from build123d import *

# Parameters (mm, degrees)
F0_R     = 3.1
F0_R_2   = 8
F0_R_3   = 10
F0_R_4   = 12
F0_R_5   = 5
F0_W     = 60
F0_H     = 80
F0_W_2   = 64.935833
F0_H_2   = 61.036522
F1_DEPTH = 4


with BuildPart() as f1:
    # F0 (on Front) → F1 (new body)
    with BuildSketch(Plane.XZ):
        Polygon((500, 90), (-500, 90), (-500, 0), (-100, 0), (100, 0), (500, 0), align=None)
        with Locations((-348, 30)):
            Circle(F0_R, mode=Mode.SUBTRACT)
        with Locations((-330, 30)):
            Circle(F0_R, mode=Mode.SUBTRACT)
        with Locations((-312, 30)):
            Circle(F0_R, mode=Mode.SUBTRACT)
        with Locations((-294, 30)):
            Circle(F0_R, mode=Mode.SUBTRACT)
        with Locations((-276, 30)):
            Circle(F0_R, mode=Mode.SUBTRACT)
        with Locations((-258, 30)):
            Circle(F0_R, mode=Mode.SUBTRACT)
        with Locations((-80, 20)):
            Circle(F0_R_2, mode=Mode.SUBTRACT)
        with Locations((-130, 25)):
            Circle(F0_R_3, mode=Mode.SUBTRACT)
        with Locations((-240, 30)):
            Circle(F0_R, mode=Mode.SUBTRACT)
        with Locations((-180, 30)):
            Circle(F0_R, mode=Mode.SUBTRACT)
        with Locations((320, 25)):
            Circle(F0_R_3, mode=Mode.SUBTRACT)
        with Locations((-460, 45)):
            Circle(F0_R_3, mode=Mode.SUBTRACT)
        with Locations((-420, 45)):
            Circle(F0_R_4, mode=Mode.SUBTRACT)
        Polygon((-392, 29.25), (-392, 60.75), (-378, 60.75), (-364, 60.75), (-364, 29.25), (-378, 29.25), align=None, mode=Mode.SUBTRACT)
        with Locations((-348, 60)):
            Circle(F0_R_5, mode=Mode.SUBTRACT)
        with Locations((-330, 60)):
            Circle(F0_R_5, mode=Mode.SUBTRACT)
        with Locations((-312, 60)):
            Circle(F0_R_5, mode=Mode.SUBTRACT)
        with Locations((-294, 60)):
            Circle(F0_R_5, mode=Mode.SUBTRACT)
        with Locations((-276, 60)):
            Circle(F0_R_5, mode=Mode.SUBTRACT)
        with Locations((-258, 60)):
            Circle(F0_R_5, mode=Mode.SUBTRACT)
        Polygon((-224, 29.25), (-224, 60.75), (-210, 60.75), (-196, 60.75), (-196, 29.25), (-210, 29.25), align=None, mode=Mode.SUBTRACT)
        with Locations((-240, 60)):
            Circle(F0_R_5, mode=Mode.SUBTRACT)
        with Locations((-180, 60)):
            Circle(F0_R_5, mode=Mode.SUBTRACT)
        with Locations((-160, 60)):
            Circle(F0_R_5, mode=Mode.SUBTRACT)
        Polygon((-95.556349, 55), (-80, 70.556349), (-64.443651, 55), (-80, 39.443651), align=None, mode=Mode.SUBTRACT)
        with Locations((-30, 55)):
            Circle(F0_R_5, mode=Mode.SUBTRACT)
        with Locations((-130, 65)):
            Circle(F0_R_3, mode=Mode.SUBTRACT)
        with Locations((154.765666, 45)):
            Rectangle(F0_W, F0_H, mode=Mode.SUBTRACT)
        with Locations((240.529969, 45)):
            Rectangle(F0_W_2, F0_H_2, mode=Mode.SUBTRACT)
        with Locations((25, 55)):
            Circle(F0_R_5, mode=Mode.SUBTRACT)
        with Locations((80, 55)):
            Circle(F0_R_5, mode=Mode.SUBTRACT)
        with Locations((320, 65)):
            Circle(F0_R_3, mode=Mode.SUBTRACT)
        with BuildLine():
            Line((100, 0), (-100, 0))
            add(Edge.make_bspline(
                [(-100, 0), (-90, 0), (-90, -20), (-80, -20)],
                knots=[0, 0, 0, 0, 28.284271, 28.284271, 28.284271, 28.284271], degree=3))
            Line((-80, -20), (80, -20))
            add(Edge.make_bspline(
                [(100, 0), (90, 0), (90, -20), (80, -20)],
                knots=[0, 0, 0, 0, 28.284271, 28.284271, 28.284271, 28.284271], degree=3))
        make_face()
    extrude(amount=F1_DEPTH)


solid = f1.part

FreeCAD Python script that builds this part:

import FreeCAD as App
import Part
import Sketcher

V = App.Vector

doc = App.newDocument("Part")
body = doc.addObject("PartDesign::Body", "Body")

sketch1 = body.newObject("Sketcher::SketchObject", "Sketch")
sketch1.AttachmentSupport = (doc.getObject("XZ_Plane"), [""])
sketch1.MapMode = "FlatFace"
sketch1.addGeometry([
    Part.LineSegment(V(500, 90, 0), V(-500, 90, 0)),
    Part.LineSegment(V(-500, 90, 0), V(-500, 0, 0)),
    Part.LineSegment(V(-500, 0, 0), V(-100, 0, 0)),
    Part.BSplineCurve([V(-100, 0, 0), V(-90, 0, 0), V(-90, -20, 0), V(-80, -20, 0)], [4, 4], [0, 28.284271], False, 3, [1, 1, 1, 1], False),
    Part.LineSegment(V(-80, -20, 0), V(80, -20, 0)),
    Part.BSplineCurve([V(100, 0, 0), V(90, 0, 0), V(90, -20, 0), V(80, -20, 0)], [4, 4], [0, 28.284271], False, 3, [1, 1, 1, 1], False),
    Part.LineSegment(V(100, 0, 0), V(500, 0, 0)),
    Part.LineSegment(V(500, 0, 0), V(500, 90, 0)),
    Part.Circle(V(-80, 20, 0), V(0, 0, 1), 8),
    Part.Circle(V(-348, 30, 0), V(0, 0, 1), 3.1),
    Part.Circle(V(-330, 30, 0), V(0, 0, 1), 3.1),
    Part.Circle(V(-312, 30, 0), V(0, 0, 1), 3.1),
    Part.Circle(V(-294, 30, 0), V(0, 0, 1), 3.1),
    Part.Circle(V(-276, 30, 0), V(0, 0, 1), 3.1),
    Part.Circle(V(-258, 30, 0), V(0, 0, 1), 3.1),
    Part.Circle(V(-240, 30, 0), V(0, 0, 1), 3.1),
    Part.Circle(V(-180, 30, 0), V(0, 0, 1), 3.1),
    Part.Circle(V(-130, 25, 0), V(0, 0, 1), 10),
    Part.Circle(V(320, 25, 0), V(0, 0, 1), 10),
    Part.Circle(V(-460, 45, 0), V(0, 0, 1), 10),
    Part.Circle(V(-420, 45, 0), V(0, 0, 1), 12),
    Part.LineSegment(V(-364, 29.25, 0), V(-392, 29.25, 0)),
    Part.LineSegment(V(-392, 29.25, 0), V(-392, 60.75, 0)),
    Part.LineSegment(V(-392, 60.75, 0), V(-364, 60.75, 0)),
    Part.LineSegment(V(-364, 60.75, 0), V(-364, 29.25, 0)),
    Part.Circle(V(-348, 60, 0), V(0, 0, 1), 5),
    Part.Circle(V(-330, 60, 0), V(0, 0, 1), 5),
    Part.Circle(V(-312, 60, 0), V(0, 0, 1), 5),
    Part.Circle(V(-294, 60, 0), V(0, 0, 1), 5),
    Part.Circle(V(-276, 60, 0), V(0, 0, 1), 5),
    Part.LineSegment(V(-196, 29.25, 0), V(-224, 29.25, 0)),
    Part.LineSegment(V(-224, 29.25, 0), V(-224, 60.75, 0)),
    Part.LineSegment(V(-224, 60.75, 0), V(-196, 60.75, 0)),
    Part.LineSegment(V(-196, 60.75, 0), V(-196, 29.25, 0)),
    Part.Circle(V(-258, 60, 0), V(0, 0, 1), 5),
    Part.Circle(V(-240, 60, 0), V(0, 0, 1), 5),
    Part.Circle(V(-180, 60, 0), V(0, 0, 1), 5),
    Part.LineSegment(V(-80, 39.443651, 0), V(-95.556349, 55, 0)),
    Part.LineSegment(V(-95.556349, 55, 0), V(-80, 70.556349, 0)),
    Part.LineSegment(V(-80, 70.556349, 0), V(-64.443651, 55, 0)),
    Part.LineSegment(V(-64.443651, 55, 0), V(-80, 39.443651, 0)),
    Part.Circle(V(-160, 60, 0), V(0, 0, 1), 5),
    Part.Circle(V(-130, 65, 0), V(0, 0, 1), 10),
    Part.Circle(V(-30, 55, 0), V(0, 0, 1), 5),
    Part.Circle(V(25, 55, 0), V(0, 0, 1), 5),
    Part.Circle(V(80, 55, 0), V(0, 0, 1), 5),
    Part.LineSegment(V(184.765666, 5, 0), V(124.765666, 5, 0)),
    Part.LineSegment(V(124.765666, 5, 0), V(124.765666, 85, 0)),
    Part.LineSegment(V(124.765666, 85, 0), V(184.765666, 85, 0)),
    Part.LineSegment(V(184.765666, 85, 0), V(184.765666, 5, 0)),
    Part.LineSegment(V(272.997885, 14.481739, 0), V(208.062052, 14.481739, 0)),
    Part.LineSegment(V(208.062052, 14.481739, 0), V(208.062052, 75.518261, 0)),
    Part.LineSegment(V(208.062052, 75.518261, 0), V(272.997885, 75.518261, 0)),
    Part.LineSegment(V(272.997885, 75.518261, 0), V(272.997885, 14.481739, 0)),
    Part.Circle(V(320, 65, 0), V(0, 0, 1), 10),
], False)
sketch1.addConstraint([
    Sketcher.Constraint("Block", 3),
    Sketcher.Constraint("Block", 5),
    Sketcher.Constraint("Coincident", 0, 2, 1, 1),
    Sketcher.Constraint("Coincident", 1, 2, 2, 1),
    Sketcher.Constraint("Coincident", 2, 2, 3, 1),
    Sketcher.Constraint("Coincident", 3, 2, 4, 1),
    Sketcher.Constraint("Coincident", 4, 2, 5, 2),
    Sketcher.Constraint("Coincident", 5, 1, 6, 1),
    Sketcher.Constraint("Coincident", 6, 2, 7, 1),
    Sketcher.Constraint("Coincident", 7, 2, 0, 1),
    Sketcher.Constraint("Coincident", 21, 2, 22, 1),
    Sketcher.Constraint("Coincident", 22, 2, 23, 1),
    Sketcher.Constraint("Coincident", 23, 2, 24, 1),
    Sketcher.Constraint("Coincident", 24, 2, 21, 1),
    Sketcher.Constraint("Coincident", 30, 2, 31, 1),
    Sketcher.Constraint("Coincident", 31, 2, 32, 1),
    Sketcher.Constraint("Coincident", 32, 2, 33, 1),
    Sketcher.Constraint("Coincident", 33, 2, 30, 1),
    Sketcher.Constraint("Coincident", 37, 2, 38, 1),
    Sketcher.Constraint("Coincident", 38, 2, 39, 1),
    Sketcher.Constraint("Coincident", 39, 2, 40, 1),
    Sketcher.Constraint("Coincident", 40, 2, 37, 1),
    Sketcher.Constraint("Coincident", 46, 2, 47, 1),
    Sketcher.Constraint("Coincident", 47, 2, 48, 1),
    Sketcher.Constraint("Coincident", 48, 2, 49, 1),
    Sketcher.Constraint("Coincident", 49, 2, 46, 1),
    Sketcher.Constraint("Coincident", 50, 2, 51, 1),
    Sketcher.Constraint("Coincident", 51, 2, 52, 1),
    Sketcher.Constraint("Coincident", 52, 2, 53, 1),
    Sketcher.Constraint("Coincident", 53, 2, 50, 1),
    Sketcher.Constraint("Horizontal", 0),
    Sketcher.Constraint("Vertical", 1),
    Sketcher.Constraint("Horizontal", 2),
    Sketcher.Constraint("Horizontal", 6),
    Sketcher.Constraint("Vertical", 7),
    Sketcher.Constraint("Horizontal", 21),
    Sketcher.Constraint("Vertical", 22),
    Sketcher.Constraint("Horizontal", 23),
    Sketcher.Constraint("Vertical", 24),
    Sketcher.Constraint("Horizontal", 30),
    Sketcher.Constraint("Vertical", 31),
    Sketcher.Constraint("Horizontal", 32),
    Sketcher.Constraint("Vertical", 33),
    Sketcher.Constraint("Horizontal", 46),
    Sketcher.Constraint("Vertical", 47),
    Sketcher.Constraint("Horizontal", 48),
    Sketcher.Constraint("Vertical", 49),
    Sketcher.Constraint("Horizontal", 50),
    Sketcher.Constraint("Vertical", 51),
    Sketcher.Constraint("Horizontal", 52),
    Sketcher.Constraint("Vertical", 53),
    Sketcher.Constraint("Equal", 9, 10),
    Sketcher.Constraint("Equal", 10, 11),
    Sketcher.Constraint("Equal", 11, 12),
    Sketcher.Constraint("Equal", 12, 13),
    Sketcher.Constraint("Equal", 13, 14),
    Sketcher.Constraint("Equal", 14, 15),
    Sketcher.Constraint("Equal", 15, 16),
    Sketcher.Constraint("Equal", 17, 18),
    Sketcher.Constraint("Equal", 18, 19),
    Sketcher.Constraint("Equal", 25, 26),
    Sketcher.Constraint("Equal", 26, 27),
    Sketcher.Constraint("Equal", 27, 28),
    Sketcher.Constraint("Equal", 28, 29),
    Sketcher.Constraint("Equal", 29, 34),
    Sketcher.Constraint("Equal", 34, 35),
    Sketcher.Constraint("Equal", 35, 36),
    Sketcher.Constraint("Equal", 36, 41),
    Sketcher.Constraint("Equal", 19, 42),
    Sketcher.Constraint("Equal", 41, 43),
    Sketcher.Constraint("Equal", 43, 44),
    Sketcher.Constraint("Equal", 44, 45),
    Sketcher.Constraint("Equal", 42, 54),
    Sketcher.Constraint("Perpendicular", 37, 38),
    Sketcher.Constraint("Perpendicular", 38, 39),
    Sketcher.Constraint("Perpendicular", 39, 40),
    Sketcher.Constraint("Horizontal", 9, 3, 10, 3),
    Sketcher.Constraint("Horizontal", 10, 3, 11, 3),
    Sketcher.Constraint("Horizontal", 11, 3, 12, 3),
    Sketcher.Constraint("Horizontal", 12, 3, 13, 3),
    Sketcher.Constraint("Horizontal", 13, 3, 14, 3),
    Sketcher.Constraint("Horizontal", 14, 3, 15, 3),
    Sketcher.Constraint("Horizontal", 15, 3, 16, 3),
    Sketcher.Constraint("Horizontal", 17, 3, 18, 3),
    Sketcher.Constraint("Horizontal", 19, 3, 20, 3),
    Sketcher.Constraint("Horizontal", 25, 3, 26, 3),
    Sketcher.Constraint("Horizontal", 26, 3, 27, 3),
    Sketcher.Constraint("Horizontal", 27, 3, 28, 3),
    Sketcher.Constraint("Horizontal", 28, 3, 29, 3),
    Sketcher.Constraint("Horizontal", 29, 3, 34, 3),
    Sketcher.Constraint("Horizontal", 34, 3, 35, 3),
    Sketcher.Constraint("Horizontal", 35, 3, 36, 3),
    Sketcher.Constraint("Horizontal", 36, 3, 41, 3),
    Sketcher.Constraint("Horizontal", 43, 3, 44, 3),
    Sketcher.Constraint("Horizontal", 44, 3, 45, 3),
    Sketcher.Constraint("Horizontal", 42, 3, 54, 3),
    Sketcher.Constraint("Horizontal", 24, 2, 30, 2),
    Sketcher.Constraint("Horizontal", 23, 2, 31, 2),
    Sketcher.Constraint("Horizontal", 45, 3, 37, 2),
    Sketcher.Constraint("Horizontal", 37, 2, 39, 2),
    Sketcher.Constraint("Vertical", 9, 3, 25, 3),
    Sketcher.Constraint("Vertical", 10, 3, 26, 3),
    Sketcher.Constraint("Vertical", 11, 3, 27, 3),
    Sketcher.Constraint("Vertical", 12, 3, 28, 3),
    Sketcher.Constraint("Vertical", 13, 3, 29, 3),
    Sketcher.Constraint("Vertical", 14, 3, 34, 3),
    Sketcher.Constraint("Vertical", 15, 3, 35, 3),
    Sketcher.Constraint("Vertical", 16, 3, 36, 3),
    Sketcher.Constraint("Vertical", 17, 3, 42, 3),
    Sketcher.Constraint("Vertical", 18, 3, 54, 3),
    Sketcher.Constraint("Vertical", 45, 3, 4, 2),
    Sketcher.Constraint("Vertical", 8, 3, 38, 2),
    Sketcher.Constraint("Vertical", 38, 2, 40, 2),
    Sketcher.Constraint("Equal", 2, 6),
    Sketcher.Constraint("Equal", 23, 30),
    Sketcher.Constraint("Diameter", 8, 16.0),
    Sketcher.Constraint("Diameter", 17, 20.0),
    Sketcher.Constraint("Diameter", 20, 24.0),
    Sketcher.Constraint("Diameter", 25, 10.0),
    Sketcher.Constraint("Diameter", 9, 6.2),
    Sketcher.Constraint("DistanceX", 0, 2, 0, 1, 1000.0),
    Sketcher.Constraint("DistanceX", 21, 2, 21, 1, 28.0),
    Sketcher.Constraint("DistanceX", 46, 2, 46, 1, 60.0),
    Sketcher.Constraint("DistanceY", 1, 2, 1, 1, 90.0),
    Sketcher.Constraint("DistanceY", 47, 1, 47, 2, 80.0),
    Sketcher.Constraint("Distance", 37, 22.0),
    Sketcher.Constraint("DistanceY", 22, 1, 22, 2, 31.5),
    Sketcher.Constraint("DistanceX", 8, 3, -1, 1, 80.0),
    Sketcher.Constraint("DistanceY", -1, 1, 8, 3, 20.0),
    Sketcher.Constraint("DistanceX", 9, 3, -1, 1, 348.0),
    Sketcher.Constraint("DistanceY", -1, 1, 9, 3, 30.0),
    Sketcher.Constraint("DistanceX", 10, 3, -1, 1, 330.0),
    Sketcher.Constraint("DistanceX", 11, 3, -1, 1, 312.0),
    Sketcher.Constraint("DistanceX", 12, 3, -1, 1, 294.0),
    Sketcher.Constraint("DistanceX", 13, 3, -1, 1, 276.0),
    Sketcher.Constraint("DistanceX", 14, 3, -1, 1, 258.0),
    Sketcher.Constraint("DistanceX", 15, 3, -1, 1, 240.0),
    Sketcher.Constraint("DistanceX", 16, 3, -1, 1, 180.0),
    Sketcher.Constraint("DistanceX", 17, 3, -1, 1, 130.0),
    Sketcher.Constraint("DistanceY", -1, 1, 17, 3, 25.0),
    Sketcher.Constraint("DistanceX", -1, 1, 18, 3, 320.0),
    Sketcher.Constraint("DistanceX", 19, 3, -1, 1, 460.0),
    Sketcher.Constraint("DistanceY", -1, 1, 19, 3, 45.0),
    Sketcher.Constraint("DistanceX", 20, 3, -1, 1, 420.0),
    Sketcher.Constraint("DistanceY", -1, 1, 25, 3, 60.0),
    Sketcher.Constraint("DistanceX", 41, 3, -1, 1, 160.0),
    Sketcher.Constraint("DistanceY", -1, 1, 42, 3, 65.0),
    Sketcher.Constraint("DistanceX", 43, 3, -1, 1, 30.0),
    Sketcher.Constraint("DistanceY", -1, 1, 43, 3, 55.0),
    Sketcher.Constraint("DistanceX", -1, 1, 44, 3, 25.0),
    Sketcher.Constraint("DistanceX", 21, 2, -1, 1, 392.0),
    Sketcher.Constraint("DistanceX", 30, 2, -1, 1, 224.0),
    Sketcher.Constraint("DistanceY", -1, 1, 46, 2, 5.0),
    Sketcher.Constraint("DistanceY", -1, 1, 21, 2, 29.25),
    Sketcher.Constraint("DistanceY", 51, 1, 51, 2, 61.036522),
    Sketcher.Constraint("DistanceX", 50, 2, 50, 1, 64.935833),
    Sketcher.Constraint("DistanceY", -1, 1, 50, 2, 14.481739),
    Sketcher.Constraint("DistanceX", 48, 2, 52, 2, 88.232219),
    Sketcher.Constraint("DistanceX", -1, 1, 46, 2, 124.765666),
])
pad1 = body.newObject("PartDesign::Pad", "Pad")
pad1.Profile = sketch1
pad1.Length = 4

doc.recompute()
